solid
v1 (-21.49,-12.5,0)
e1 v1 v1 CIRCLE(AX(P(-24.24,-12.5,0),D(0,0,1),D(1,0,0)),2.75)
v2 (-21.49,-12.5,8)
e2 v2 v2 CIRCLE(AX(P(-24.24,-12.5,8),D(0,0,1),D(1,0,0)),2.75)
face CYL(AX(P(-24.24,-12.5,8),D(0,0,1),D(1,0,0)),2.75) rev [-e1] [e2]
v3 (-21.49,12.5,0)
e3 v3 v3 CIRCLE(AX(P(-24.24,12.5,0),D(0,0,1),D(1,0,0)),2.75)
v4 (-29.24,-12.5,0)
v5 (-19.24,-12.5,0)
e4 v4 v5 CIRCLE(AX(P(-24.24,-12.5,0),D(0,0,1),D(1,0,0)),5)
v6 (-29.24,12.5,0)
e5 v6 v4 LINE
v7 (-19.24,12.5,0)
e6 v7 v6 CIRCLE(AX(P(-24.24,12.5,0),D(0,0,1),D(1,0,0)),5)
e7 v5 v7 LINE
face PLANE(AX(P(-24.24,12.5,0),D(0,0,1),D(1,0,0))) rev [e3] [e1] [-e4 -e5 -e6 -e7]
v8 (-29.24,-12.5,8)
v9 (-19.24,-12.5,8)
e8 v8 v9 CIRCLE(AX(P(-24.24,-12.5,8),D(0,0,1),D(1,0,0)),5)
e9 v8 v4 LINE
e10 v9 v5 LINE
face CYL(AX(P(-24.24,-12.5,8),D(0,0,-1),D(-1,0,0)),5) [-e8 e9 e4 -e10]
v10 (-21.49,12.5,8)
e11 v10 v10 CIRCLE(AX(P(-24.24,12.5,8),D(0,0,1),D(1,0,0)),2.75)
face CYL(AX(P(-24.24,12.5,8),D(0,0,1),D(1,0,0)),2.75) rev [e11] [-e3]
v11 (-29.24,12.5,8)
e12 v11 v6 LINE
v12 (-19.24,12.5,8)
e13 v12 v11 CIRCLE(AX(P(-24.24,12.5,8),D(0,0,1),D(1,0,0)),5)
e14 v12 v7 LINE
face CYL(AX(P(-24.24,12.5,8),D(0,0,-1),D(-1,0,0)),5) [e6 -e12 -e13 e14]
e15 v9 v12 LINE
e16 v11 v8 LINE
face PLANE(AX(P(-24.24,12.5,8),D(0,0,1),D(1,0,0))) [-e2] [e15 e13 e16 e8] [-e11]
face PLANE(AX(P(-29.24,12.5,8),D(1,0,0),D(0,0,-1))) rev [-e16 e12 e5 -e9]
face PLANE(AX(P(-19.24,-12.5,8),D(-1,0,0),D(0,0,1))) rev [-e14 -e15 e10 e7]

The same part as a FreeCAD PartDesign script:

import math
import FreeCAD as App
import Part
import Sketcher
Q = App.Units.Quantity

doc = App.newDocument("Part")
body = doc.addObject("PartDesign::Body", "Body")

# Sketch on XY plane
sketch1 = body.newObject("Sketcher::SketchObject", "Sketch")
sketch1.AttachmentSupport = (doc.getObject("XY_Plane"), [""])
sketch1.MapMode = "FlatFace"
sketch1.addGeometry([
    Part.LineSegment(App.Vector(-29, 12, 0), App.Vector(-29, -12, 0)),
    Part.ArcOfCircle(Part.Circle(App.Vector(-24, -12, 0), App.Vector(0, 0, 1), 5), math.radians(180), math.radians(360)),
    Part.LineSegment(App.Vector(-19, -12, 0), App.Vector(-19, 12, 0)),
    Part.ArcOfCircle(Part.Circle(App.Vector(-24, 12, 0), App.Vector(0, 0, 1), 5), math.radians(0), math.radians(180)),
], False)
sketch1.addConstraint([
    Sketcher.Constraint("Tangent", 0, 2, 1, 1),
    Sketcher.Constraint("Tangent", 1, 2, 2, 1),
    Sketcher.Constraint("Tangent", 2, 2, 3, 1),
    Sketcher.Constraint("Tangent", 3, 2, 0, 1),
    Sketcher.Constraint("Vertical", 0),
    Sketcher.Constraint("Vertical", 2),
    Sketcher.Constraint("Radius", 1, Q("5 mm")),
    Sketcher.Constraint("DistanceY", 0, 2, 0, 1, Q("25 mm")),
    Sketcher.Constraint("DistanceY", 1, 3, -1, 1, Q("12.5 mm")),
    Sketcher.Constraint("DistanceX", 1, 3, -1, 1, Q("24.24 mm")),
])
pad1 = body.newObject("PartDesign::Pad", "Pad")
pad1.Profile = sketch1
pad1.Length = 8

# Sketch on XY plane
sketch2 = body.newObject("Sketcher::SketchObject", "Sketch001")
sketch2.AttachmentSupport = (doc.getObject("XY_Plane"), [""])
sketch2.MapMode = "FlatFace"
sketch2.AttachmentOffset = App.Placement(App.Vector(0, 0, 8), App.Rotation())
sketch2.addGeometry([
    Part.Circle(App.Vector(-24.2, -12.5, 0), App.Vector(0, 0, 1), 2.8),
    Part.Circle(App.Vector(-24.2, 12.5, 0), App.Vector(0, 0, 1), 2.8),
], False)
sketch2.addConstraint([
    Sketcher.Constraint("Equal", 0, 1),
    Sketcher.Constraint("Symmetric", 0, 3, 1, 3, -1),
    Sketcher.Constraint("Diameter", 0, Q("5.5 mm")),
    Sketcher.Constraint("DistanceY", 0, 3, 1, 3, Q("25 mm")),
    Sketcher.Constraint("DistanceX", 0, 3, -1, 1, Q("24.24 mm")),
])
doc.recompute()
hole = body.newObject("PartDesign::Hole", "Hole")
hole.Profile = sketch2
hole.ThreadType = "None"
hole.Diameter = 5.5
hole.DepthType = "ThroughAll"

doc.recompute()
